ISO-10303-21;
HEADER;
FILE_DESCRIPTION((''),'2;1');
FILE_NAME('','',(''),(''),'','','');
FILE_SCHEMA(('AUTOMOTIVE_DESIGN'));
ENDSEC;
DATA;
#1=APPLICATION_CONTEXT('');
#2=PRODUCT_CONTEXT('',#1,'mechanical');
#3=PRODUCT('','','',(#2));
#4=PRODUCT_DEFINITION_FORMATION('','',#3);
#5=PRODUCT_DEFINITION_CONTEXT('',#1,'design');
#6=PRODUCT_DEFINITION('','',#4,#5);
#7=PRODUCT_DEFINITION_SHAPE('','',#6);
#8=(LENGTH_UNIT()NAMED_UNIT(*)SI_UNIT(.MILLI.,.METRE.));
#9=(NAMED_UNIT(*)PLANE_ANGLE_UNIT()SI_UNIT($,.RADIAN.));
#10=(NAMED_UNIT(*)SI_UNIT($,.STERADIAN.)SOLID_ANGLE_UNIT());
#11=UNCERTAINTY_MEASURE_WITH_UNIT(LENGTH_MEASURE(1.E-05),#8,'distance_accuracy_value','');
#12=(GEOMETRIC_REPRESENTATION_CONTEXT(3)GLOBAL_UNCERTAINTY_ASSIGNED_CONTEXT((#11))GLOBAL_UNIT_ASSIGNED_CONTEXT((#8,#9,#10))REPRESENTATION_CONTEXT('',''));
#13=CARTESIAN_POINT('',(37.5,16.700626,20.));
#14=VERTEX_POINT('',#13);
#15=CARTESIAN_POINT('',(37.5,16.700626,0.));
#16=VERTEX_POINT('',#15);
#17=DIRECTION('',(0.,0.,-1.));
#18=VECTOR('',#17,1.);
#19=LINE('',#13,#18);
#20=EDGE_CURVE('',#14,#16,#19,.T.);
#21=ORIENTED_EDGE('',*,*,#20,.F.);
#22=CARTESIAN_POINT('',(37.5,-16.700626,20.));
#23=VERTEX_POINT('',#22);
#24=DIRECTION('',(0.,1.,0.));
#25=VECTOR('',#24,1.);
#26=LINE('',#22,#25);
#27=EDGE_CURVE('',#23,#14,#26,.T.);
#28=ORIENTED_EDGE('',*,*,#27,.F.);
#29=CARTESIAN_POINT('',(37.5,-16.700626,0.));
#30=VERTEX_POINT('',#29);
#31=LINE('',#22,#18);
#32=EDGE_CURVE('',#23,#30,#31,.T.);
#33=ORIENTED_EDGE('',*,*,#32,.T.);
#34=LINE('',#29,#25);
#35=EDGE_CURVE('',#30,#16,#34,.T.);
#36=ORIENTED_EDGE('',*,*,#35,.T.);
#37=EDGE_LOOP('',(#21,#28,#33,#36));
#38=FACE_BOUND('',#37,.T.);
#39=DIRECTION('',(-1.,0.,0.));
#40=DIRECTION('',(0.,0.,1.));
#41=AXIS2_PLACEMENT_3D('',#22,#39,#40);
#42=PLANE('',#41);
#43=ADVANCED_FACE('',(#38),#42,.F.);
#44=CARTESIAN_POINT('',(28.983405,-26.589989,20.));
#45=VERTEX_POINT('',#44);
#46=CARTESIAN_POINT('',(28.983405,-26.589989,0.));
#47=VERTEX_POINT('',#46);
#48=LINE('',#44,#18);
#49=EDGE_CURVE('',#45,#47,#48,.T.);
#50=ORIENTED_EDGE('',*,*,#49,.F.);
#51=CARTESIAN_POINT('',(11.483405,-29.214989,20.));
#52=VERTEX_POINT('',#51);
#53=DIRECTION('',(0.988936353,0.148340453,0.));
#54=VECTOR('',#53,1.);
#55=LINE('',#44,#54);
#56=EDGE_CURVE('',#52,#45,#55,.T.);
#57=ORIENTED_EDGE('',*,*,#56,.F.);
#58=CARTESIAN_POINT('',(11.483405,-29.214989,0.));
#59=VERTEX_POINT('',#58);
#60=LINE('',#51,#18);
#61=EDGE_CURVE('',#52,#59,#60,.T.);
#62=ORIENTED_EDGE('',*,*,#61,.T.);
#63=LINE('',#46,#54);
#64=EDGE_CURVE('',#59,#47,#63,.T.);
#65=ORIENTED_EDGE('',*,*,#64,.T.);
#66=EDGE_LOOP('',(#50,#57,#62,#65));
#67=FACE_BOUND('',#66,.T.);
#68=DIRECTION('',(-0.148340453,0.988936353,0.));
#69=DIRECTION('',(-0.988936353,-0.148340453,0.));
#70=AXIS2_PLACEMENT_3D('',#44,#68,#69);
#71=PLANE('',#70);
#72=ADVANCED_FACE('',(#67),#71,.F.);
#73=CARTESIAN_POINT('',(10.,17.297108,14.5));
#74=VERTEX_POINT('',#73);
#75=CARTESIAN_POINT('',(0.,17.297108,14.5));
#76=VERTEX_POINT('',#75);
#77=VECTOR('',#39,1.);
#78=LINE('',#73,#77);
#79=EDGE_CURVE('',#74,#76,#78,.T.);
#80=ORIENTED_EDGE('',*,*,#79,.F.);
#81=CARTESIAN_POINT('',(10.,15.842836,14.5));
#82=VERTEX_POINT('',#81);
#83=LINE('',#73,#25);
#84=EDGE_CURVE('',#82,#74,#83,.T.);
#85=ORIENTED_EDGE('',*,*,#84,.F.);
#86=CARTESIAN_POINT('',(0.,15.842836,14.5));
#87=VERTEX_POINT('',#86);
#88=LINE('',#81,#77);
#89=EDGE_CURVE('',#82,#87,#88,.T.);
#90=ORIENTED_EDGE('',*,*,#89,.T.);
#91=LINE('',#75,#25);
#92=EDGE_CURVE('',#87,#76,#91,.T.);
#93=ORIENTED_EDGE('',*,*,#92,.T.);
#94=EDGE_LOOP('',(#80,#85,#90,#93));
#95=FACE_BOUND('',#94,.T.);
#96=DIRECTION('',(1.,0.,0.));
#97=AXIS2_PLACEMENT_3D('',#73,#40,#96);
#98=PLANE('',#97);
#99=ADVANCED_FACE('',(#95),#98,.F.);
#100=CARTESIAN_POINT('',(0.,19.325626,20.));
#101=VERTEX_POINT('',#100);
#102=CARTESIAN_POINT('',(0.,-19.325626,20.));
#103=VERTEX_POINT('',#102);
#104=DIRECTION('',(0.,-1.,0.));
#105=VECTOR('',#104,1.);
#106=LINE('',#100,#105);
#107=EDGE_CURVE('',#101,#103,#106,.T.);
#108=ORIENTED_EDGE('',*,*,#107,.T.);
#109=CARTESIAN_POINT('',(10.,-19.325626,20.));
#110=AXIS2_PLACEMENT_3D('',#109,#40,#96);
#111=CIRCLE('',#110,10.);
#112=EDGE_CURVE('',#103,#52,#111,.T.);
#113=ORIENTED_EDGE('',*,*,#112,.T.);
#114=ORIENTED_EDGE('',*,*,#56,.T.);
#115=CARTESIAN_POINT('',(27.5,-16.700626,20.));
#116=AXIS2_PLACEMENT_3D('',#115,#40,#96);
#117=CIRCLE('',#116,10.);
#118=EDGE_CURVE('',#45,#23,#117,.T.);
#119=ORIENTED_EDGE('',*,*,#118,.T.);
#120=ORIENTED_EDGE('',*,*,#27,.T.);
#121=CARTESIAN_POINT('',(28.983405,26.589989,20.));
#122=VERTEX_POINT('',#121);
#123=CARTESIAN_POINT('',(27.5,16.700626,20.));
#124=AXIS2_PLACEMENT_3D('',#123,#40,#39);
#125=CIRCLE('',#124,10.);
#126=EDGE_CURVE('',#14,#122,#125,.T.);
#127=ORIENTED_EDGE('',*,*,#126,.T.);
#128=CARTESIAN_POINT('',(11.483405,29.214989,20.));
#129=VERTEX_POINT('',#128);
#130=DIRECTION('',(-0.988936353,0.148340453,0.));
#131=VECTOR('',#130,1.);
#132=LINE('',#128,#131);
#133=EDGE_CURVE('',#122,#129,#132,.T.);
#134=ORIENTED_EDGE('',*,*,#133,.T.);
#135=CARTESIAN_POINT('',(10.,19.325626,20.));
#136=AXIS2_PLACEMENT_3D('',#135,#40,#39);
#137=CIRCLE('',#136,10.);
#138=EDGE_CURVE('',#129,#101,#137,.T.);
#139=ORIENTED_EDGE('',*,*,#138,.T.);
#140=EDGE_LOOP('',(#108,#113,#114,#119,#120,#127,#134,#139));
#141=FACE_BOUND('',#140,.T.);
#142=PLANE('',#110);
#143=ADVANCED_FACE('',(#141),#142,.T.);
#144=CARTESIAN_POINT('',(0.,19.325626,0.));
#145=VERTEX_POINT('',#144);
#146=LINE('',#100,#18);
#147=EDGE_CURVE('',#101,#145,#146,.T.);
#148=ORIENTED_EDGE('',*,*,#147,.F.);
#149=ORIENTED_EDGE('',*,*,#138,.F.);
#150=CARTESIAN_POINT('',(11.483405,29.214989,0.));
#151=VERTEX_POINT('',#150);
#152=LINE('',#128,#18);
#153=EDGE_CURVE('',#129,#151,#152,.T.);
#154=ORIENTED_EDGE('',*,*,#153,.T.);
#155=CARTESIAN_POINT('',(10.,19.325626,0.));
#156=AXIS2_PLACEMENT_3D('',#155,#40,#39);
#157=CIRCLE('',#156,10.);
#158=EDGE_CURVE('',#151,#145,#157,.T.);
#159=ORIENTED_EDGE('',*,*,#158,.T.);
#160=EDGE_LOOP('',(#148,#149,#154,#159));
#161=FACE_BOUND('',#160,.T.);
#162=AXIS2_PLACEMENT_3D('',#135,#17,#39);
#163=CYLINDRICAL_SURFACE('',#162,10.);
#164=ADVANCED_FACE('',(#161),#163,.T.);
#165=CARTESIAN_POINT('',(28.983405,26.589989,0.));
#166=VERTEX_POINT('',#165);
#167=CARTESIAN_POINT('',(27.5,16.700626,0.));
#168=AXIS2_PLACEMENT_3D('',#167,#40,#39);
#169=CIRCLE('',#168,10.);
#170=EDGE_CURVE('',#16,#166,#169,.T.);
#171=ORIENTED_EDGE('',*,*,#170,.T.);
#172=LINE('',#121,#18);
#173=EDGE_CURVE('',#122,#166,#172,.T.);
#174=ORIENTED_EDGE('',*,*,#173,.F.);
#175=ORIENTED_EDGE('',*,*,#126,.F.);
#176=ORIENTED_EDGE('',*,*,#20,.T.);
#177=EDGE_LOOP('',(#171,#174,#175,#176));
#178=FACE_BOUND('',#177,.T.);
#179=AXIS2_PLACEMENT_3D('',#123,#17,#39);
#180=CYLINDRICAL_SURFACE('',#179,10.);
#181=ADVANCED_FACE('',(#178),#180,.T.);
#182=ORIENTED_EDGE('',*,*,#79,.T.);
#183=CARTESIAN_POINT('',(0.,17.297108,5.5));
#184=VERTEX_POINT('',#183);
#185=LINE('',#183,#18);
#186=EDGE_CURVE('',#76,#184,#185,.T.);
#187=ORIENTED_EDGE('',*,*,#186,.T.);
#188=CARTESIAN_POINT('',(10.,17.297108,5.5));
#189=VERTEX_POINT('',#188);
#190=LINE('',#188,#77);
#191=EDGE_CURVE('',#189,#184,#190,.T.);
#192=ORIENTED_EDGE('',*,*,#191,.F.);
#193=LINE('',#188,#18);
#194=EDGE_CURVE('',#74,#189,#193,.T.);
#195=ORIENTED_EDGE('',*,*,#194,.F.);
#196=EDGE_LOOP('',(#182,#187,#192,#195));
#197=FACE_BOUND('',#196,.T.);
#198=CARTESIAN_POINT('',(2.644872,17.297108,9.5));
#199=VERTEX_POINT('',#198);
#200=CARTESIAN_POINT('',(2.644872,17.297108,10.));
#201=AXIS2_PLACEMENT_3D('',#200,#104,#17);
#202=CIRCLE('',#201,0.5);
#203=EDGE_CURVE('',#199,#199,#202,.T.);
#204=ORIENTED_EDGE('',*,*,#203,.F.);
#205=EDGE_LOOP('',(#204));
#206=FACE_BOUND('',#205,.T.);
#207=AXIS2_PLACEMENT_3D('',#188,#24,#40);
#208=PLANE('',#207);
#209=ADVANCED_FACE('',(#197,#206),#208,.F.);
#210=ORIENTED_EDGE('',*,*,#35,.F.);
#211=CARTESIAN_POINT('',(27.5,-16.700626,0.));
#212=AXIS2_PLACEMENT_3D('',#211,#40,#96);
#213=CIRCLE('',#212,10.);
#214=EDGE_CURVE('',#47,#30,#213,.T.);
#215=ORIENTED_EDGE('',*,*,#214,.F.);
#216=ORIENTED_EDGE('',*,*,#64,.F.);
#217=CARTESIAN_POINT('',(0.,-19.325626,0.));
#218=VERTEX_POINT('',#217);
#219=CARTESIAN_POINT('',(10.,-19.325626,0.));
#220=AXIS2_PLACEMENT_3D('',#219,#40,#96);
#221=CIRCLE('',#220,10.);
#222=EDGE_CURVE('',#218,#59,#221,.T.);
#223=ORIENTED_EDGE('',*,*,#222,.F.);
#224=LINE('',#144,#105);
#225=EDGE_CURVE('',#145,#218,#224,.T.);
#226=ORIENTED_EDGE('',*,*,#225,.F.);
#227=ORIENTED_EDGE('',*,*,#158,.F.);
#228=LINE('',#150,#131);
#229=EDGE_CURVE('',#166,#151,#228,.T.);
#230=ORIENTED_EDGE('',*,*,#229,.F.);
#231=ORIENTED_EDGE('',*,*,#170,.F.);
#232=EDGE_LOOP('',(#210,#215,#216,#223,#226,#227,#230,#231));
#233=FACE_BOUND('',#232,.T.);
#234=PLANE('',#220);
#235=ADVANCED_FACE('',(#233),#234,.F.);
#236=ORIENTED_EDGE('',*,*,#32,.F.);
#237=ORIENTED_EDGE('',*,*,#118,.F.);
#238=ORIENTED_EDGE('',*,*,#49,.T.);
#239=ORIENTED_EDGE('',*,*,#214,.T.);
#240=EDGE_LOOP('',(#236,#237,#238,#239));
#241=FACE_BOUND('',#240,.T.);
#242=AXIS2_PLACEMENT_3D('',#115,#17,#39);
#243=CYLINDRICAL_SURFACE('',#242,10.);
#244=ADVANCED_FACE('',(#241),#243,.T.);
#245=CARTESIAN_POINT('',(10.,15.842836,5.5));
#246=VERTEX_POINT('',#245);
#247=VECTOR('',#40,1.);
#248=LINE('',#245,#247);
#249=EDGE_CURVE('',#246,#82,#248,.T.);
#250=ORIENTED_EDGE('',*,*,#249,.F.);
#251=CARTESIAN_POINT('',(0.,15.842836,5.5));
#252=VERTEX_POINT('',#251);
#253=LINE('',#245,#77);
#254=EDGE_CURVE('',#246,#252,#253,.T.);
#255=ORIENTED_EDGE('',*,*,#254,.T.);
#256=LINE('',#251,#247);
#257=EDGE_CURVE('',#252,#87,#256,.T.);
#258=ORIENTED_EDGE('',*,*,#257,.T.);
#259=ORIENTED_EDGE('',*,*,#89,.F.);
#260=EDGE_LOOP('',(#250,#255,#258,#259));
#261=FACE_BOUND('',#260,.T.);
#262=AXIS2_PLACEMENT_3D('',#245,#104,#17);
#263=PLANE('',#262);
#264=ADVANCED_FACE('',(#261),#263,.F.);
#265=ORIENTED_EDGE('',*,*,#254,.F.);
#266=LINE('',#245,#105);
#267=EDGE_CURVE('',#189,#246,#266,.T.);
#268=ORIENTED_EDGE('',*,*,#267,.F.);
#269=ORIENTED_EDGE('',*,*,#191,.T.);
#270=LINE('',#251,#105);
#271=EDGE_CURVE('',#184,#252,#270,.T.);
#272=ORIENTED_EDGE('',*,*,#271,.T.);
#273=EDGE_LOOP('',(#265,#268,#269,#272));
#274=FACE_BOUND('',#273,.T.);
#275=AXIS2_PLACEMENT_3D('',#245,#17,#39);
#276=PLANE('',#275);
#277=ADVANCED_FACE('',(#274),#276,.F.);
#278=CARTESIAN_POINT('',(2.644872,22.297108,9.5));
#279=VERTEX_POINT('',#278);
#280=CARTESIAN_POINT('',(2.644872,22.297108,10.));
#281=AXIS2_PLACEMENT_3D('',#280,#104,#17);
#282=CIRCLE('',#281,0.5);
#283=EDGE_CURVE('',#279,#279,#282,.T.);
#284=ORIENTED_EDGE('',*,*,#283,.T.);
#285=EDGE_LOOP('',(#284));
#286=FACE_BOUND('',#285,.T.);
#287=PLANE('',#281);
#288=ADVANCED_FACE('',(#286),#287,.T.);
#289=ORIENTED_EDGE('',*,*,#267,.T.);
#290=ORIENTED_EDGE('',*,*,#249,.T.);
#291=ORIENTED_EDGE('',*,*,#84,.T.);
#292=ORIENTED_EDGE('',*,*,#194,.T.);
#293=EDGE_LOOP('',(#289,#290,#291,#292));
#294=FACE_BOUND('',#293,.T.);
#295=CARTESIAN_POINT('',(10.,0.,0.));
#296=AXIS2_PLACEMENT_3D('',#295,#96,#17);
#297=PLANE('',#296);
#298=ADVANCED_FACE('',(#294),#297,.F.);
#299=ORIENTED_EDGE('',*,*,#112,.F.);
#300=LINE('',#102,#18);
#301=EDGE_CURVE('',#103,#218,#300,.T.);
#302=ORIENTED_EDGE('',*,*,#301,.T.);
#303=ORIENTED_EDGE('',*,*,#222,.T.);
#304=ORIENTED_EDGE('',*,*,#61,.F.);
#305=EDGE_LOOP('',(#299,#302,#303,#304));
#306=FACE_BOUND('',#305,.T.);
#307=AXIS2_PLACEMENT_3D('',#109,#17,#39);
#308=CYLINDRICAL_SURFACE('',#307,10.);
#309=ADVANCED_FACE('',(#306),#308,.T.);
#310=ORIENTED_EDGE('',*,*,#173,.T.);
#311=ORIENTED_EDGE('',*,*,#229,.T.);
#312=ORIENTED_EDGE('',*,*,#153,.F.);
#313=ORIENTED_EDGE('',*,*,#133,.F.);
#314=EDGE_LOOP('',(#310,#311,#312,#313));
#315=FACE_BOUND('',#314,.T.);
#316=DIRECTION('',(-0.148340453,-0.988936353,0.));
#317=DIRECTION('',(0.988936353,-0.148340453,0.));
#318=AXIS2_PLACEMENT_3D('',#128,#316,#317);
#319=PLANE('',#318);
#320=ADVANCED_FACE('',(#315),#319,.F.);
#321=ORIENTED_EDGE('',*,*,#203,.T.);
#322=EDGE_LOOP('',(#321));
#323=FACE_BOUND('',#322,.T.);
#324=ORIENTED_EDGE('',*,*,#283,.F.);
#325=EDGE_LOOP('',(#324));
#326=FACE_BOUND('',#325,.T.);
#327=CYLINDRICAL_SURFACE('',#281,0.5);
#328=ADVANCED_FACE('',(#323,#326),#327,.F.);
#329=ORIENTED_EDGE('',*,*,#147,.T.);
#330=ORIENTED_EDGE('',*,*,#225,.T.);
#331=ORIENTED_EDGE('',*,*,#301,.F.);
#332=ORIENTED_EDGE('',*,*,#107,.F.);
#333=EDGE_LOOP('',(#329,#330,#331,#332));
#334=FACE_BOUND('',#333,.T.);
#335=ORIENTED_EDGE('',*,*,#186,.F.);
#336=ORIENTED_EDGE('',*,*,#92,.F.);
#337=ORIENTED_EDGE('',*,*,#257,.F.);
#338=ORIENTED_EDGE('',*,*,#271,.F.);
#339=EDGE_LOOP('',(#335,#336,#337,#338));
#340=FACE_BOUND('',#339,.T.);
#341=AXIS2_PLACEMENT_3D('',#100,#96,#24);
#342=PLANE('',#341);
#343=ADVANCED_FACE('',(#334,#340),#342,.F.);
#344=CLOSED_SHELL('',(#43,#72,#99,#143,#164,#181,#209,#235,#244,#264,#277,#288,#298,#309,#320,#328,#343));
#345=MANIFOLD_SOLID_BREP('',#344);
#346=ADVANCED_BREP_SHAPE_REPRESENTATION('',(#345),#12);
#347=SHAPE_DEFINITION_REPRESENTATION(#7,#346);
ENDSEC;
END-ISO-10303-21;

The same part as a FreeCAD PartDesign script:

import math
import FreeCAD as App
import Part
import Sketcher
Q = App.Units.Quantity

doc = App.newDocument("Part")
body = doc.addObject("PartDesign::Body", "Body")

sketch1 = body.newObject("Sketcher::SketchObject", "Sketch")
sketch1.AttachmentSupport = (doc.getObject("XY_Plane"), [""])
sketch1.MapMode = "FlatFace"
sketch1.addGeometry([
    Part.LineSegment(App.Vector(0, 19, 0), App.Vector(0, -19, 0)),
    Part.ArcOfCircle(Part.Circle(App.Vector(10, -19, 0), App.Vector(0, 0, 1), 10), math.radians(-180), math.radians(-81)),
    Part.LineSegment(App.Vector(11, -29, 0), App.Vector(29, -27, 0)),
    Part.ArcOfCircle(Part.Circle(App.Vector(27, -17, 0), App.Vector(0, 0, 1), 10), math.radians(-81), math.radians(0)),
    Part.LineSegment(App.Vector(38, -17, 0), App.Vector(38, 17, 0)),
    Part.ArcOfCircle(Part.Circle(App.Vector(27, 17, 0), App.Vector(0, 0, 1), 10), math.radians(0), math.radians(81)),
    Part.LineSegment(App.Vector(29, 27, 0), App.Vector(11, 29, 0)),
    Part.ArcOfCircle(Part.Circle(App.Vector(10, 19, 0), App.Vector(0, 0, 1), 10), math.radians(81), math.radians(180)),
], False)
sketch1.addConstraint([
    Sketcher.Constraint("Tangent", 0, 2, 1, 1),
    Sketcher.Constraint("Tangent", 1, 2, 2, 1),
    Sketcher.Constraint("Tangent", 2, 2, 3, 1),
    Sketcher.Constraint("Tangent", 3, 2, 4, 1),
    Sketcher.Constraint("Tangent", 4, 2, 5, 1),
    Sketcher.Constraint("Tangent", 5, 2, 6, 1),
    Sketcher.Constraint("Tangent", 6, 2, 7, 1),
    Sketcher.Constraint("Tangent", 7, 2, 0, 1),
    Sketcher.Constraint("Vertical", 0),
    Sketcher.Constraint("Vertical", 4),
    Sketcher.Constraint("Equal", 1, 3),
    Sketcher.Constraint("Equal", 3, 5),
    Sketcher.Constraint("Equal", 5, 7),
    Sketcher.Constraint("Symmetric", 0, 2, 7, 2, -1, 1),
    Sketcher.Constraint("Vertical", 2, 2, 5, 2),
    Sketcher.Constraint("Radius", 1, Q("10 mm")),
    Sketcher.Constraint("DistanceX", -1, 1, 3, 3, Q("27.5 mm")),
    Sketcher.Constraint("DistanceY", 1, 3, 3, 3, Q("2.625 mm")),
    Sketcher.Constraint("DistanceY", 0, 2, 0, 1, Q("38.651252 mm")),
])
pad1 = body.newObject("PartDesign::Pad", "Pad")
pad1.Profile = sketch1
pad1.Length = 20

sketch2 = body.newObject("Sketcher::SketchObject", "Sketch001")
sketch2.AttachmentSupport = (doc.getObject("YZ_Plane"), [""])
sketch2.MapMode = "FlatFace"
sketch2.addGeometry([
    Part.LineSegment(App.Vector(17.3, 5.5, 0), App.Vector(15.8, 5.5, 0)),
    Part.LineSegment(App.Vector(15.8, 5.5, 0), App.Vector(15.8, 14.5, 0)),
    Part.LineSegment(App.Vector(15.8, 14.5, 0), App.Vector(17.3, 14.5, 0)),
    Part.LineSegment(App.Vector(17.3, 14.5, 0), App.Vector(17.3, 5.5, 0)),
], False)
sketch2.addConstraint([
    Sketcher.Constraint("Coincident", 0, 2, 1, 1),
    Sketcher.Constraint("Coincident", 1, 2, 2, 1),
    Sketcher.Constraint("Coincident", 2, 2, 3, 1),
    Sketcher.Constraint("Coincident", 3, 2, 0, 1),
    Sketcher.Constraint("Horizontal", 0),
    Sketcher.Constraint("Vertical", 1),
    Sketcher.Constraint("Horizontal", 2),
    Sketcher.Constraint("Vertical", 3),
    Sketcher.Constraint("DistanceY", 1, 1, 1, 2, Q("9 mm")),
    Sketcher.Constraint("DistanceY", -1, 1, 0, 2, Q("5.5 mm")),
    Sketcher.Constraint("DistanceX", 0, 2, 0, 1, Q("1.454272 mm")),
    Sketcher.Constraint("DistanceX", -1, 1, 2, 2, Q("17.297108 mm")),
])
pocket1 = body.newObject("PartDesign::Pocket", "Pocket")
pocket1.Profile = sketch2
pocket1.Length = 10
pocket1.Reversed = True

sketch3 = body.newObject("Sketcher::SketchObject", "Sketch002")
sketch3.AttachmentSupport = (doc.getObject("XZ_Plane"), [""])
sketch3.MapMode = "FlatFace"
sketch3.AttachmentOffset = App.Placement(App.Vector(0, 0, -17.297108), App.Rotation())
sketch3.addGeometry(Part.Circle(App.Vector(2.6, 10, 0), App.Vector(0, 0, 1), 0.5), False)
sketch3.addConstraint([
    Sketcher.Constraint("Diameter", 0, Q("1 mm")),
    Sketcher.Constraint("DistanceY", -1, 1, 0, 3, Q("10 mm")),
    Sketcher.Constraint("DistanceX", -1, 1, 0, 3, Q("2.644872 mm")),
])
pocket2 = body.newObject("PartDesign::Pocket", "Pocket001")
pocket2.Profile = sketch3
pocket2.Length = 5

doc.recompute()
